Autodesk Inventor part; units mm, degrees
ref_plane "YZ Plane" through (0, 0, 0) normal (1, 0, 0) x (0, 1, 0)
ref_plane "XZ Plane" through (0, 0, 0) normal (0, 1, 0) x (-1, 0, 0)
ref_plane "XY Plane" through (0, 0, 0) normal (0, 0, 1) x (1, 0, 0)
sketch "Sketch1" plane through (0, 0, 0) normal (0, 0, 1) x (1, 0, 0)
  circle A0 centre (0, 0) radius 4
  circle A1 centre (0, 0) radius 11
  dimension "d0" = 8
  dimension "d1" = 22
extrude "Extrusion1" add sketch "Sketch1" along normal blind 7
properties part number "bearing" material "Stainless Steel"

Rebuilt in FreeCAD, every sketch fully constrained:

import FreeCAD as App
import Part
import Sketcher

V = App.Vector

doc = App.newDocument("Part")
body = doc.addObject("PartDesign::Body", "Body")

sketch1 = body.newObject("Sketcher::SketchObject", "Sketch")
sketch1.AttachmentSupport = (doc.getObject("XY_Plane"), [""])
sketch1.MapMode = "FlatFace"
sketch1.addGeometry([
    Part.Circle(V(0, 0, 0), V(0, 0, 1), 11),
    Part.Circle(V(0, 0, 0), V(0, 0, 1), 4),
], False)
sketch1.addConstraint([
    Sketcher.Constraint("Coincident", 0, 3, -1, 1),
    Sketcher.Constraint("Coincident", 1, 3, -1, 1),
    Sketcher.Constraint("Diameter", 0, 22.0),
    Sketcher.Constraint("Diameter", 1, 8.0),
])
pad1 = body.newObject("PartDesign::Pad", "Pad")
pad1.Profile = sketch1
pad1.Length = 7

doc.recompute()
